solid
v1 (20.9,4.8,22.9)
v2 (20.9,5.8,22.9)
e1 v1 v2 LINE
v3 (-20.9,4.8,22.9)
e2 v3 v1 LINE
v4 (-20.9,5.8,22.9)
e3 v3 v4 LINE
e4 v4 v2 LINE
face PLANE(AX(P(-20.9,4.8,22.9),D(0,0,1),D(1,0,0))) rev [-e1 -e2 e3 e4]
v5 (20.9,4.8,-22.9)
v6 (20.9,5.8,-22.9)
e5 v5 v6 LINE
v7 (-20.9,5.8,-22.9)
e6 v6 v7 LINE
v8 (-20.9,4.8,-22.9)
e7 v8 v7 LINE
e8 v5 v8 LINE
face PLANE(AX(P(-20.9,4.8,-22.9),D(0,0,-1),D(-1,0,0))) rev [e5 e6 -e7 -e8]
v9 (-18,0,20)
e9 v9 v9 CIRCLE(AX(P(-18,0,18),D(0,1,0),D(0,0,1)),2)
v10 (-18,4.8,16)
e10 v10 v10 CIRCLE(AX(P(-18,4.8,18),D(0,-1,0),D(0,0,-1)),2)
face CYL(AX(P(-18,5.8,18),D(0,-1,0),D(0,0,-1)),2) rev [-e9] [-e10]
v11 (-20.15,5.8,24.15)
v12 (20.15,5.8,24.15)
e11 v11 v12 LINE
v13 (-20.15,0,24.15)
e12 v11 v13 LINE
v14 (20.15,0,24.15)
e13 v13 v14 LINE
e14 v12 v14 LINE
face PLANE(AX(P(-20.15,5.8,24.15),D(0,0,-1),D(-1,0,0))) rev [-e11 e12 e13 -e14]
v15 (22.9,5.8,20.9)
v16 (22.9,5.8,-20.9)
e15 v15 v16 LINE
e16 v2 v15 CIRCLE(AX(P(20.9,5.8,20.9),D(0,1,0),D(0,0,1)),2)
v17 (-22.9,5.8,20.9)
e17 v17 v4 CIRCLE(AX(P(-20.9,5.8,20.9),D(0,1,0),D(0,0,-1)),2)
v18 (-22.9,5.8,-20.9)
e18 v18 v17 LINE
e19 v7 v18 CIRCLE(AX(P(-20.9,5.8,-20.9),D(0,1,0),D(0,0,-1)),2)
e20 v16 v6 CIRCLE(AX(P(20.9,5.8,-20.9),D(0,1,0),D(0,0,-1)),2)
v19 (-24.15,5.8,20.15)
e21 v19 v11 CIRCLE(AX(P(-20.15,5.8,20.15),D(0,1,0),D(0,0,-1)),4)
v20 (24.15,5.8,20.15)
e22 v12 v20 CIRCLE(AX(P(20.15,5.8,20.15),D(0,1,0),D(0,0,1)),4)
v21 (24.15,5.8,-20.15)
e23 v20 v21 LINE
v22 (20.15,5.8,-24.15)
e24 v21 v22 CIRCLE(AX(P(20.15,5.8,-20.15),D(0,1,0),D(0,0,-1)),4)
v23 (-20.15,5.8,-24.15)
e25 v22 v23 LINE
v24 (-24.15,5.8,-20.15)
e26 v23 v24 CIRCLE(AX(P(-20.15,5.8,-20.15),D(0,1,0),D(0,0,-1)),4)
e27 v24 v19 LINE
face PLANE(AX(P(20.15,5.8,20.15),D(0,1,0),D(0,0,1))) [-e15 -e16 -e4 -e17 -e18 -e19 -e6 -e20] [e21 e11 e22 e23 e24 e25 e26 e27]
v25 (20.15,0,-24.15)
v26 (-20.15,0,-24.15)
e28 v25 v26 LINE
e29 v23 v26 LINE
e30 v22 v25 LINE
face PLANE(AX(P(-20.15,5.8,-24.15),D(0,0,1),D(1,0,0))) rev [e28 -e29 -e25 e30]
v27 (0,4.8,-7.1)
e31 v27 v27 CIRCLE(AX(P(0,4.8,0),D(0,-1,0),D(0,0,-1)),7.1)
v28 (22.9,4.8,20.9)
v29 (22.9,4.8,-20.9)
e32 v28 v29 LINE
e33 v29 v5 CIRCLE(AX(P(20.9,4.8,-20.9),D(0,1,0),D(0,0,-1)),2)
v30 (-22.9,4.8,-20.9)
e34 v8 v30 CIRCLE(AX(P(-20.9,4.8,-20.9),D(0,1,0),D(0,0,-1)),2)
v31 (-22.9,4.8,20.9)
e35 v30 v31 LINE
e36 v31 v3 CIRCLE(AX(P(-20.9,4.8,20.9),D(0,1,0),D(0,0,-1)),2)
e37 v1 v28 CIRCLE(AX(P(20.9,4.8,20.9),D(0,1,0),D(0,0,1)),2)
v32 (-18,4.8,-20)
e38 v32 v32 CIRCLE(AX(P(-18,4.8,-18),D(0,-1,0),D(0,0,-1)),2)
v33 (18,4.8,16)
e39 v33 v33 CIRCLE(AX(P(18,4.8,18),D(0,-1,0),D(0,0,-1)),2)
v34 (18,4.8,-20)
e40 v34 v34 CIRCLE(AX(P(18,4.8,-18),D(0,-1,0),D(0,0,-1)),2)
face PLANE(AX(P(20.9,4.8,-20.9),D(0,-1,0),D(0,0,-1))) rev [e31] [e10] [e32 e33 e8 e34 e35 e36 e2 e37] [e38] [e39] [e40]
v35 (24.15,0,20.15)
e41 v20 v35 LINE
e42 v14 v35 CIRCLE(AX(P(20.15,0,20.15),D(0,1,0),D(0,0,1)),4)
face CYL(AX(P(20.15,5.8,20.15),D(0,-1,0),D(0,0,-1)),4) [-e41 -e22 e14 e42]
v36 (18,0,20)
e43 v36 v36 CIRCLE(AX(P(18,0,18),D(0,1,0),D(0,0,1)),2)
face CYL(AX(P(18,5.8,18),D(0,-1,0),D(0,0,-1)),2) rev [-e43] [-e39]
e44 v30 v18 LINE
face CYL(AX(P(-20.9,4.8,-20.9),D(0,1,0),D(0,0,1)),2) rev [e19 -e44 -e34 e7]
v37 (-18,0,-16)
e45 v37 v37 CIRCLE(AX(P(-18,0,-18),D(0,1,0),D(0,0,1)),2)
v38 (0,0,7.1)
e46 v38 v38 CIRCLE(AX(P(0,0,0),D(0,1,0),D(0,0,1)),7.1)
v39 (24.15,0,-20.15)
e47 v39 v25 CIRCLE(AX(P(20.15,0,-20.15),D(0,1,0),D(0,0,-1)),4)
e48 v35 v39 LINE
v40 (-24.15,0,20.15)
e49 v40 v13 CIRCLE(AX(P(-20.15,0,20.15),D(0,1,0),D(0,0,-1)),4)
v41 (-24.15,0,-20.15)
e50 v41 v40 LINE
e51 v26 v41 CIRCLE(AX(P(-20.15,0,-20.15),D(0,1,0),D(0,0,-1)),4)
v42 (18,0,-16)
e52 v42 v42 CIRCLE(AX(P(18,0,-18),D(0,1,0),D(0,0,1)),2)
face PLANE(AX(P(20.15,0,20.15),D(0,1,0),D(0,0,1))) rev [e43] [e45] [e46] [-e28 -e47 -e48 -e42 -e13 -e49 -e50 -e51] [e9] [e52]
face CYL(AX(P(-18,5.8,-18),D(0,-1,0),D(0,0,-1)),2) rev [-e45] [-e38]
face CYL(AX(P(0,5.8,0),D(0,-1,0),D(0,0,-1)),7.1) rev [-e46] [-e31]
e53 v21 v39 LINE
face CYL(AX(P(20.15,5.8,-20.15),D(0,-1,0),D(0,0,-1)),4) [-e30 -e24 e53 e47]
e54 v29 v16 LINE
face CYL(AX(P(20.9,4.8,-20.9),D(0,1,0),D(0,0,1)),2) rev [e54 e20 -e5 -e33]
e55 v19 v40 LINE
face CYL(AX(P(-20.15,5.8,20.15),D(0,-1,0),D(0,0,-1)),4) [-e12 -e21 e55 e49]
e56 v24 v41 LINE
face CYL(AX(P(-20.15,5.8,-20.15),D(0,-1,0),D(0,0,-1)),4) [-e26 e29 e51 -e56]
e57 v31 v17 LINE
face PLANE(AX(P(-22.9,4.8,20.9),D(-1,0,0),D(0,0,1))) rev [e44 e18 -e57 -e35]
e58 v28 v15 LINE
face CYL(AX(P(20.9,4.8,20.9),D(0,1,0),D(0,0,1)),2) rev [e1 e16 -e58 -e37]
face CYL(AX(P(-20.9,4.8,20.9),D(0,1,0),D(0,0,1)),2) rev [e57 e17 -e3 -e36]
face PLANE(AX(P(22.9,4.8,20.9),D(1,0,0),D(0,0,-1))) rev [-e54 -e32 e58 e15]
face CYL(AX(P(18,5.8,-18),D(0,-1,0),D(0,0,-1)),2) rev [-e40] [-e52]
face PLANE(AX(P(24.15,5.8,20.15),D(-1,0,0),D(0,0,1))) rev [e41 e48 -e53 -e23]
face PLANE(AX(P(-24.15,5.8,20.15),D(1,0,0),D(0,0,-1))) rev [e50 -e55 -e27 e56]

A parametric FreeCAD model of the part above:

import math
import FreeCAD as App
import Part
import Sketcher
from FreeCAD import Vector

doc = App.newDocument("Part")
body = doc.addObject("PartDesign::Body", "Body")

# Sketch on XZ plane
sketch1 = body.newObject("Sketcher::SketchObject", "Sketch")
sketch1.AttachmentSupport = (doc.getObject("XZ_Plane"), [""])
sketch1.MapMode = "FlatFace"
sketch1.addGeometry([
    Part.LineSegment(Vector(-20.15, 24.15, 0), Vector(20.15, 24.15, 0)),  # 0
    Part.ArcOfCircle(Part.Circle(Vector(20.15, 20.15, 0), Vector(0, 0, 1), 4), math.radians(0), math.radians(90)),  # 1
    Part.LineSegment(Vector(24.15, 20.15, 0), Vector(24.15, -20.15, 0)),  # 2
    Part.ArcOfCircle(Part.Circle(Vector(20.15, -20.15, 0), Vector(0, 0, 1), 4), math.radians(-90), math.radians(0)),  # 3
    Part.LineSegment(Vector(20.15, -24.15, 0), Vector(-20.15, -24.15, 0)),  # 4
    Part.ArcOfCircle(Part.Circle(Vector(-20.15, -20.15, 0), Vector(0, 0, 1), 4), math.radians(180), math.radians(270)),  # 5
    Part.LineSegment(Vector(-24.15, -20.15, 0), Vector(-24.15, 20.15, 0)),  # 6
    Part.ArcOfCircle(Part.Circle(Vector(-20.15, 20.15, 0), Vector(0, 0, 1), 4), math.radians(90), math.radians(180)),  # 7
    Part.Circle(Vector(-18, 18, 0), Vector(0, 0, 1), 2),  # 8
    Part.Circle(Vector(18, 18, 0), Vector(0, 0, 1), 2),  # 9
    Part.Circle(Vector(-18, -18, 0), Vector(0, 0, 1), 2),  # 10
    Part.Circle(Vector(0, 0, 0), Vector(0, 0, 1), 7.1),  # 11
    Part.Circle(Vector(18, -18, 0), Vector(0, 0, 1), 2),  # 12
], False)
sketch1.addConstraint([
    Sketcher.Constraint("Tangent", 0, 2, 1, 2),
    Sketcher.Constraint("Tangent", 1, 1, 2, 1),
    Sketcher.Constraint("Tangent", 2, 2, 3, 2),
    Sketcher.Constraint("Tangent", 3, 1, 4, 1),
    Sketcher.Constraint("Tangent", 4, 2, 5, 2),
    Sketcher.Constraint("Tangent", 5, 1, 6, 1),
    Sketcher.Constraint("Tangent", 6, 2, 7, 2),
    Sketcher.Constraint("Tangent", 7, 1, 0, 1),
    Sketcher.Constraint("Horizontal", 0),
    Sketcher.Constraint("Vertical", 2),
    Sketcher.Constraint("Horizontal", 4),
    Sketcher.Constraint("Vertical", 6),
    Sketcher.Constraint("Coincident", 11, 3, -1, 1),
    Sketcher.Constraint("Equal", 1, 3),
    Sketcher.Constraint("Equal", 3, 5),
    Sketcher.Constraint("Equal", 5, 7),
    Sketcher.Constraint("Equal", 8, 9),
    Sketcher.Constraint("Equal", 9, 10),
    Sketcher.Constraint("Equal", 10, 12),
    Sketcher.Constraint("Symmetric", 1, 3, 5, 3, -1, 1),
    Sketcher.Constraint("Symmetric", 9, 3, 10, 3, -1, 1),
    Sketcher.Constraint("Symmetric", 8, 3, 12, 3, -1, 1),
    Sketcher.Constraint("Symmetric", 8, 3, 9, 3, -2),
    Sketcher.Constraint("Equal", 4, 2),
    Sketcher.Constraint("Diameter", 8, 4.0),
    Sketcher.Constraint("Radius", 1, 4.0),
    Sketcher.Constraint("Diameter", 11, 14.2),
    Sketcher.Constraint("DistanceX", 0, 1, 0, 2, 40.3),
    Sketcher.Constraint("DistanceX", 8, 3, -1, 1, 18.0),
    Sketcher.Constraint("DistanceY", -1, 1, 8, 3, 18.0),
])
pad1 = body.newObject("PartDesign::Pad", "Pad")
pad1.Profile = sketch1
pad1.Length = 5.8
pad1.Reversed = True

# Sketch on XZ plane
sketch2 = body.newObject("Sketcher::SketchObject", "Sketch001")
sketch2.AttachmentSupport = (doc.getObject("XZ_Plane"), [""])
sketch2.MapMode = "FlatFace"
sketch2.AttachmentOffset = App.Placement(Vector(0, 0, -5.8), App.Rotation())
sketch2.addGeometry([
    Part.LineSegment(Vector(-20.9, 22.9, 0), Vector(20.9, 22.9, 0)),  # 0
    Part.ArcOfCircle(Part.Circle(Vector(20.9, 20.9, 0), Vector(0, 0, 1), 2), math.radians(0), math.radians(90)),  # 1
    Part.LineSegment(Vector(22.9, 20.9, 0), Vector(22.9, -20.9, 0)),  # 2
    Part.ArcOfCircle(Part.Circle(Vector(20.9, -20.9, 0), Vector(0, 0, 1), 2), math.radians(-90), math.radians(0)),  # 3
    Part.LineSegment(Vector(20.9, -22.9, 0), Vector(-20.9, -22.9, 0)),  # 4
    Part.ArcOfCircle(Part.Circle(Vector(-20.9, -20.9, 0), Vector(0, 0, 1), 2), math.radians(-180), math.radians(-90)),  # 5
    Part.LineSegment(Vector(-22.9, -20.9, 0), Vector(-22.9, 20.9, 0)),  # 6
    Part.ArcOfCircle(Part.Circle(Vector(-20.9, 20.9, 0), Vector(0, 0, 1), 2), math.radians(90), math.radians(180)),  # 7
], False)
sketch2.addConstraint([
    Sketcher.Constraint("Tangent", 0, 2, 1, 2),
    Sketcher.Constraint("Tangent", 1, 1, 2, 1),
    Sketcher.Constraint("Tangent", 2, 2, 3, 2),
    Sketcher.Constraint("Tangent", 3, 1, 4, 1),
    Sketcher.Constraint("Tangent", 4, 2, 5, 2),
    Sketcher.Constraint("Tangent", 5, 1, 6, 1),
    Sketcher.Constraint("Tangent", 6, 2, 7, 2),
    Sketcher.Constraint("Tangent", 7, 1, 0, 1),
    Sketcher.Constraint("Horizontal", 0),
    Sketcher.Constraint("Vertical", 2),
    Sketcher.Constraint("Horizontal", 4),
    Sketcher.Constraint("Vertical", 6),
    Sketcher.Constraint("Equal", 1, 3),
    Sketcher.Constraint("Equal", 3, 5),
    Sketcher.Constraint("Equal", 5, 7),
    Sketcher.Constraint("Symmetric", 1, 3, 5, 3, -1, 1),
    Sketcher.Constraint("Equal", 4, 2),
    Sketcher.Constraint("Radius", 1, 2.0),
    Sketcher.Constraint("DistanceX", 0, 1, 0, 2, 41.8),
])
pocket1 = body.newObject("PartDesign::Pocket", "Pocket")
pocket1.Profile = sketch2
pocket1.Length = 1
pocket1.Reversed = True

doc.recompute()
